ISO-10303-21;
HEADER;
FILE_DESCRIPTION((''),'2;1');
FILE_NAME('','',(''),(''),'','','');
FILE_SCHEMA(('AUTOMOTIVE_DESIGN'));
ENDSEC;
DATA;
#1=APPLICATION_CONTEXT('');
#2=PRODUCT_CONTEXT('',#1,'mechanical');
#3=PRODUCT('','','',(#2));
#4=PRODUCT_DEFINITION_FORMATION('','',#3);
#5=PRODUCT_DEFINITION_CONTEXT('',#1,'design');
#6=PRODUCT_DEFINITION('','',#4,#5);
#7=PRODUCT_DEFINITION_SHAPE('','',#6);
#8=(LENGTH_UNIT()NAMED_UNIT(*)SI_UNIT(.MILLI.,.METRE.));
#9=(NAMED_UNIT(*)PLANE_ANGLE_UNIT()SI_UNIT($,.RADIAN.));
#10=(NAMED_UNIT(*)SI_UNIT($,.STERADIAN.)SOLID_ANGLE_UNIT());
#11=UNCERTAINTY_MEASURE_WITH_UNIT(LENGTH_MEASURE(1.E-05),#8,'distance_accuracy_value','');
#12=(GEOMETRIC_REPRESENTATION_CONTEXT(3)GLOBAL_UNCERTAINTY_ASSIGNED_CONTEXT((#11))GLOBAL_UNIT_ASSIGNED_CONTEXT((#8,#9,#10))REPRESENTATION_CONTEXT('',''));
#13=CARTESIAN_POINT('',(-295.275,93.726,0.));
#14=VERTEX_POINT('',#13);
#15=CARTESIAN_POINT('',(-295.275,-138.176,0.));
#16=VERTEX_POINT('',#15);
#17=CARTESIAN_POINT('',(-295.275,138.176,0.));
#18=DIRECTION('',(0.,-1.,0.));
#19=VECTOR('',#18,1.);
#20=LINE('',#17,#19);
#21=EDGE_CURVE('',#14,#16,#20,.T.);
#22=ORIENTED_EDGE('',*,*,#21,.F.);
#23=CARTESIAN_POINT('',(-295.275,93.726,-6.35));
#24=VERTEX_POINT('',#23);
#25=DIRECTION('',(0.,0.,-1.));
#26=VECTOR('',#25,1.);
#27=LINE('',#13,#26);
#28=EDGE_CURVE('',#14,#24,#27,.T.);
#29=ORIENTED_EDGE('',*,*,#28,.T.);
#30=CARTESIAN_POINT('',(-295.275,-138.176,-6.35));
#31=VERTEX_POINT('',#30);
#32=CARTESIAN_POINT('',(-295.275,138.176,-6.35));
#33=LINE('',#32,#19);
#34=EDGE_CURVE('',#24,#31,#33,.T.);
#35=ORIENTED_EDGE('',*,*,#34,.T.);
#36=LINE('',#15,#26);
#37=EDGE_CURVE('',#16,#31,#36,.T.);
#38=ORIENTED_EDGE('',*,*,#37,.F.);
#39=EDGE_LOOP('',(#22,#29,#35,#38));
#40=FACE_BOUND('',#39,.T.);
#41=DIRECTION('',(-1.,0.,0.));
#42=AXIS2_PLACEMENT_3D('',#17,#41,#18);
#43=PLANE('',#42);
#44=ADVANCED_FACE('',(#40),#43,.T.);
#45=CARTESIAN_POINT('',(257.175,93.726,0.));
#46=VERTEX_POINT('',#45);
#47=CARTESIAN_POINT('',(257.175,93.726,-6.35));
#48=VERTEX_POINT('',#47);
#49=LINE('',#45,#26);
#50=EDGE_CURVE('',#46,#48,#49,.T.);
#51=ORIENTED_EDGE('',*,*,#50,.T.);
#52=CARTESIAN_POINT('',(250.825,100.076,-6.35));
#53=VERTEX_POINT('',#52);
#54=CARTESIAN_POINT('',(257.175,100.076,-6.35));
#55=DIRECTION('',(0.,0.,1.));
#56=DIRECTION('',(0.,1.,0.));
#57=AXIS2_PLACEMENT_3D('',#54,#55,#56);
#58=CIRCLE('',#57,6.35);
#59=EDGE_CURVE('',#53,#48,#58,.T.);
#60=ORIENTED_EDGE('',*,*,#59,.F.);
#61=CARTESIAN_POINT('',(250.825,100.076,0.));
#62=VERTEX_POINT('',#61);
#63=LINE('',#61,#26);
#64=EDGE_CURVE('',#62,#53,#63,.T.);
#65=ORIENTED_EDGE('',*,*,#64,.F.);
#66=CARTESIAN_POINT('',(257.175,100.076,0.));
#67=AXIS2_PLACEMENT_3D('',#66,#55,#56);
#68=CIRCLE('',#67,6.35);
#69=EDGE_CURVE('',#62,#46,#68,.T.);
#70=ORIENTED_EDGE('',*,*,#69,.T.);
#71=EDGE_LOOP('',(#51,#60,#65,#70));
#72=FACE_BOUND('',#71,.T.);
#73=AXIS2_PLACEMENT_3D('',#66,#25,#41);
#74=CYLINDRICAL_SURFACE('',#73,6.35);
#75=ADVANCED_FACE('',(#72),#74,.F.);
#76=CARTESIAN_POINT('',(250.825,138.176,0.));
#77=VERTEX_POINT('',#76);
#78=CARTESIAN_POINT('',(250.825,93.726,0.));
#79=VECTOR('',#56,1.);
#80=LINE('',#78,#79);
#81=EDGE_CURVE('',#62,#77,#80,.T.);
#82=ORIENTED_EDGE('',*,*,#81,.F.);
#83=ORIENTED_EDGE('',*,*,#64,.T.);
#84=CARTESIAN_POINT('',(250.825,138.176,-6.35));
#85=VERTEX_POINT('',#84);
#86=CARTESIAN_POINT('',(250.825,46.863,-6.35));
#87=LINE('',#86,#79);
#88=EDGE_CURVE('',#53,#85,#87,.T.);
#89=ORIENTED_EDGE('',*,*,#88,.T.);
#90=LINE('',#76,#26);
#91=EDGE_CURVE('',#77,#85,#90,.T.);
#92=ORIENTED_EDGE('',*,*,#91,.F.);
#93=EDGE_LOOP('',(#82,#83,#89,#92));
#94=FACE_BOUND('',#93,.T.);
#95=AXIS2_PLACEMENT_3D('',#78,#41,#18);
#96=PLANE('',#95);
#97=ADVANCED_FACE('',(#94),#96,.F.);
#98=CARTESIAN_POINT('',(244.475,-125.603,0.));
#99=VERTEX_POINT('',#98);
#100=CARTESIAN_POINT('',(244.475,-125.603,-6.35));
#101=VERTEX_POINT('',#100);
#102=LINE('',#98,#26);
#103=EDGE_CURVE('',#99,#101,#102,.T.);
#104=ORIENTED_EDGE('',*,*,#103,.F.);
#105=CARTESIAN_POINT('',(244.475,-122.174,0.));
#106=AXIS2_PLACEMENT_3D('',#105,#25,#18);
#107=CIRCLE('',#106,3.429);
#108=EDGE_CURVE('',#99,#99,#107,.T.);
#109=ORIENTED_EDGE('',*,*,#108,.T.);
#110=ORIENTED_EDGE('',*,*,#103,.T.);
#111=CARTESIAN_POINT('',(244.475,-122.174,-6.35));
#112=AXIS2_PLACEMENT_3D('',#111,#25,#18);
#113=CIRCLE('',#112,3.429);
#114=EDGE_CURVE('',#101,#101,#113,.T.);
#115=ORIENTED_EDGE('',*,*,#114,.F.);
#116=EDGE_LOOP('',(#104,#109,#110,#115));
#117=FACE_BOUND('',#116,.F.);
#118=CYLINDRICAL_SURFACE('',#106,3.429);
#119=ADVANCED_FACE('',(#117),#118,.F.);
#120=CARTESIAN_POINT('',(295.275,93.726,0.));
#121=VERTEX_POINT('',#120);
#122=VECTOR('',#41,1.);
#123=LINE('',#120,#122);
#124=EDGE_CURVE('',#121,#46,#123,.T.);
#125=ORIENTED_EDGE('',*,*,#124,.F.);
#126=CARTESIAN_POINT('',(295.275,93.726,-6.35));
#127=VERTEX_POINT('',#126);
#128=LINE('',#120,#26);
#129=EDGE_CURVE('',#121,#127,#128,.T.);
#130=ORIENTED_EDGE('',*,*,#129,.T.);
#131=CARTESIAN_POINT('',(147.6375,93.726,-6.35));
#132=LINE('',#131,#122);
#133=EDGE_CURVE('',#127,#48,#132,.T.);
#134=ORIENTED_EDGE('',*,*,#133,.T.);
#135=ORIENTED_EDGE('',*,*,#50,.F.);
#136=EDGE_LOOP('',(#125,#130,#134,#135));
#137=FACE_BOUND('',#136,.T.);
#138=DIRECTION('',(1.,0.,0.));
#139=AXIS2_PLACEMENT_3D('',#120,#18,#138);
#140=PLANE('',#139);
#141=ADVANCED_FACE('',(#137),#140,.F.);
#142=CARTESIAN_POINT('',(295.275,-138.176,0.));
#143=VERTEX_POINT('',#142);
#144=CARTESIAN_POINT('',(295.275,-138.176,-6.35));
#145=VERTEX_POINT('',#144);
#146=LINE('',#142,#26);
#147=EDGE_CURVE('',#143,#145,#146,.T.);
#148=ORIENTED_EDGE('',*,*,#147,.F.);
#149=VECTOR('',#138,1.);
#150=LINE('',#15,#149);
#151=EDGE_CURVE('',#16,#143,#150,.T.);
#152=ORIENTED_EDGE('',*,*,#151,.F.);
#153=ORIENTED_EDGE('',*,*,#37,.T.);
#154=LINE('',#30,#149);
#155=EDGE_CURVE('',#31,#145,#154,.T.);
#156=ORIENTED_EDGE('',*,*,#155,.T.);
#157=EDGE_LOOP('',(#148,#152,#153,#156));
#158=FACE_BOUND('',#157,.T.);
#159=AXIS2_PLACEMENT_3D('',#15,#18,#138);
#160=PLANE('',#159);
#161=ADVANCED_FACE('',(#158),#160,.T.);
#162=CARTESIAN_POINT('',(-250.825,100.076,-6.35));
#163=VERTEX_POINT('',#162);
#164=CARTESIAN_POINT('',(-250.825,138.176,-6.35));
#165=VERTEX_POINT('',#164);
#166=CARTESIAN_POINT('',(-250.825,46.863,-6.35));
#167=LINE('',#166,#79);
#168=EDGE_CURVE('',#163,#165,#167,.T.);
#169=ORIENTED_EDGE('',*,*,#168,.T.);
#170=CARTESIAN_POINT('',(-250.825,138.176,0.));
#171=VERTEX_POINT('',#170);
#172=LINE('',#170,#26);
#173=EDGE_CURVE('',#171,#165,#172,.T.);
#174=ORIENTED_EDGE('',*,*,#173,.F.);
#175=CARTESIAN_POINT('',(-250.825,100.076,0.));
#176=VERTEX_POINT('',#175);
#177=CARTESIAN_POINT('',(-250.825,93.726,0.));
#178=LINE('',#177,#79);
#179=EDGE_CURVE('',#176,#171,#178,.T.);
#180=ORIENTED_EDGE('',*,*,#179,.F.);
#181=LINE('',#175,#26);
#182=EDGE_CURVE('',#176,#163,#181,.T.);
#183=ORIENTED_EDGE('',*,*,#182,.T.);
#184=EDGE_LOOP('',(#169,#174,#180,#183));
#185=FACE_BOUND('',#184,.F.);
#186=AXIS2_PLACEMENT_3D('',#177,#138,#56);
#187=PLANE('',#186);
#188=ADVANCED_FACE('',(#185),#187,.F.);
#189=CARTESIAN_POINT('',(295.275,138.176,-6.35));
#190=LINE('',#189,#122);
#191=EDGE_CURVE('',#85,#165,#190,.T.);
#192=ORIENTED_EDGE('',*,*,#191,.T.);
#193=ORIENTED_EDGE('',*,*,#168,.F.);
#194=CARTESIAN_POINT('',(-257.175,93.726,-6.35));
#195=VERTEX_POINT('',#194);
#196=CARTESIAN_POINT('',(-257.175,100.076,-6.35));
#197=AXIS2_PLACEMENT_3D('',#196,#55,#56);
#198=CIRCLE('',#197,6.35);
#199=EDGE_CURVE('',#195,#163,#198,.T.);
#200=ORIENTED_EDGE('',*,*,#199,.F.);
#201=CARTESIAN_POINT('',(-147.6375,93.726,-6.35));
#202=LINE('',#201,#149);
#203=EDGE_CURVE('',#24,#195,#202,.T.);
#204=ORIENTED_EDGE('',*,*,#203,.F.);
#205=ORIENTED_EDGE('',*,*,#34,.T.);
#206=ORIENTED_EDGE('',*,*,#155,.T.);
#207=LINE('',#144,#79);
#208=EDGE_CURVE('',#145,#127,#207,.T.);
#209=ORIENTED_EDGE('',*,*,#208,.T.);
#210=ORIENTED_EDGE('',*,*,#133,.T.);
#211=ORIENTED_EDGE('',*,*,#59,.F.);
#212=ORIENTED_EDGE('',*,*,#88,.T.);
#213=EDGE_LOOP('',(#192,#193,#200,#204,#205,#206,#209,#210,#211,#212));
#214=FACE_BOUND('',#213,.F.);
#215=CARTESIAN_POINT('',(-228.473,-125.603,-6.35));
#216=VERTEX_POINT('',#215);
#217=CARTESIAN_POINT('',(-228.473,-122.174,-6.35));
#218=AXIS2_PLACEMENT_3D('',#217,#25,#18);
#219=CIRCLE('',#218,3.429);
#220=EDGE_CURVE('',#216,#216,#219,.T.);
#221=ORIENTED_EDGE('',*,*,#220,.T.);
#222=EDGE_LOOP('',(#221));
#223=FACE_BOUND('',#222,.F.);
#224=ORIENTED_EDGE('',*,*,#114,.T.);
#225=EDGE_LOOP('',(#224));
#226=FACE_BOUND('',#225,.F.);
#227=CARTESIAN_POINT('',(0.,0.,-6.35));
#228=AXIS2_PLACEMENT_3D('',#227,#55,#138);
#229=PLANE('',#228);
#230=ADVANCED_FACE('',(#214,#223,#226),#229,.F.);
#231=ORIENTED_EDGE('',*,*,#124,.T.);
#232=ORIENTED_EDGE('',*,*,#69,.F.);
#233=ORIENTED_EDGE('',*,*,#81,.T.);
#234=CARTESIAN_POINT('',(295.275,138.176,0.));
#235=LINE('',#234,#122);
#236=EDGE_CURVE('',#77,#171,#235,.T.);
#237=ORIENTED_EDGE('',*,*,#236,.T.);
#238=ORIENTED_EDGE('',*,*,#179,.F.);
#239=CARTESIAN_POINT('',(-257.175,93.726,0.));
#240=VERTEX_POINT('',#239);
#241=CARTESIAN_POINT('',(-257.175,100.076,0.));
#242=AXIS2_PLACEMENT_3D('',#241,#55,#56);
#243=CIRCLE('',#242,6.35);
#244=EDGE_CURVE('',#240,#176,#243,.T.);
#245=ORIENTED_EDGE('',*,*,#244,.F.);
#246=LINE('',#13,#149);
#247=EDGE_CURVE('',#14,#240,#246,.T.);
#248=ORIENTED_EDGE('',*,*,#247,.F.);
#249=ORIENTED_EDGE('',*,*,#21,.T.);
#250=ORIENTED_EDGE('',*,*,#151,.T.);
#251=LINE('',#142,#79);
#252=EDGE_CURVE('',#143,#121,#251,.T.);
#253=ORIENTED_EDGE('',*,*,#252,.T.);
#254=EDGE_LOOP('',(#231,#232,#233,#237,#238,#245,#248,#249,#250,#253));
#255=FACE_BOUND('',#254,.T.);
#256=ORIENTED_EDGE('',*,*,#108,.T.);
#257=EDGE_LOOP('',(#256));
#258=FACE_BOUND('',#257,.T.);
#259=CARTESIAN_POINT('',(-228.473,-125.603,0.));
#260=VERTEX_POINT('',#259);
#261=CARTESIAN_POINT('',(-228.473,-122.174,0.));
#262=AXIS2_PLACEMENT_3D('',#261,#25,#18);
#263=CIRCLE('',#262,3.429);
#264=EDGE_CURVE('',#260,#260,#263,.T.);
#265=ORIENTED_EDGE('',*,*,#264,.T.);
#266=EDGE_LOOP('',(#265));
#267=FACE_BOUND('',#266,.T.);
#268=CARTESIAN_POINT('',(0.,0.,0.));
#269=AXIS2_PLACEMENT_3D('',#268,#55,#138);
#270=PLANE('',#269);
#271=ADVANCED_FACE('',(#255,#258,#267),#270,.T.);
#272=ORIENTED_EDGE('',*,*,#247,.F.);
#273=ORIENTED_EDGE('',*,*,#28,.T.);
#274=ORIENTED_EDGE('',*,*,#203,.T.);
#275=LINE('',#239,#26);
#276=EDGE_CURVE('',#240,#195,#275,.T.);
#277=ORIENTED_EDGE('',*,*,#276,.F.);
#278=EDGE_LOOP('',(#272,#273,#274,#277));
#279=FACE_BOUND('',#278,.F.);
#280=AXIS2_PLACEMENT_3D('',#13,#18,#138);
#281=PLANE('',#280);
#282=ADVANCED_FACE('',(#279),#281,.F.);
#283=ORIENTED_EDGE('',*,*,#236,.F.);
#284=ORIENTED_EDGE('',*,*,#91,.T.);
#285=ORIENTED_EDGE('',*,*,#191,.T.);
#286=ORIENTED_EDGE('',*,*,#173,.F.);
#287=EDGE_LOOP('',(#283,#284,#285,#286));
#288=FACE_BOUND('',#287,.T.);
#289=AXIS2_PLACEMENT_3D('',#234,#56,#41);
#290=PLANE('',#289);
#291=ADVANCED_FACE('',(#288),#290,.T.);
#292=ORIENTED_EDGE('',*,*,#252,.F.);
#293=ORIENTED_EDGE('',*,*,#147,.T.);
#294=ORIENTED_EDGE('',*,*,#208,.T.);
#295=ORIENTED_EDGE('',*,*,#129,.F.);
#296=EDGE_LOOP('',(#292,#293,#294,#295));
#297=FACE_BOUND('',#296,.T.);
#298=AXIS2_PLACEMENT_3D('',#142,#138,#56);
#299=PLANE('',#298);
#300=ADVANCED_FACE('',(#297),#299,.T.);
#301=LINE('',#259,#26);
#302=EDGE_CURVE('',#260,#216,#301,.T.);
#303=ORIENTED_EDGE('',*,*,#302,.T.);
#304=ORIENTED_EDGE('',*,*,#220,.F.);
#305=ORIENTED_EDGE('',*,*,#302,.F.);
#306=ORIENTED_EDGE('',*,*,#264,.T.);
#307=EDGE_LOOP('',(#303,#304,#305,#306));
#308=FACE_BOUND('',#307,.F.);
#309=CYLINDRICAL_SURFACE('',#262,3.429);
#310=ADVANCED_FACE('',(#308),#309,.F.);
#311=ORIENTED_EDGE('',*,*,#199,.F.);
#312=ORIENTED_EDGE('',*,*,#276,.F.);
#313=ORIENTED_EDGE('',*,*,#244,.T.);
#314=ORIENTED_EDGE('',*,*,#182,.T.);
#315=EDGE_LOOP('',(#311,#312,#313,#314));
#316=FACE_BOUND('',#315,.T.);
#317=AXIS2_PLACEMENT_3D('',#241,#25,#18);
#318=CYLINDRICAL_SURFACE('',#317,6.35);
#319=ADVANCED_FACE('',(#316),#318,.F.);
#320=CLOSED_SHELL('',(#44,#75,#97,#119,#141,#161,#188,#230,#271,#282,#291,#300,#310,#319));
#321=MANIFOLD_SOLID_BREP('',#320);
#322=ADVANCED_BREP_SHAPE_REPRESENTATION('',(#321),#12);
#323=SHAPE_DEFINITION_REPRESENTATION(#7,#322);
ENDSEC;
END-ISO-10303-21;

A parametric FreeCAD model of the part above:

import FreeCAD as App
import Part
import Sketcher

V = App.Vector
Q = App.Units.Quantity


def edges_at(feature, points):
    """Names of the edges that pass closest to the given points."""
    edges = feature.Shape.Edges
    near = lambda p: min(range(len(edges)), key=lambda i: edges[i].distToShape(Part.Vertex(*p))[0])
    return sorted({f"Edge{near(p) + 1}" for p in points})

doc = App.newDocument("Part")
params = doc.addObject("Spreadsheet::Sheet", "Params")
for row, (alias, value) in enumerate([
    ("sketch1_width", "23.25 in"),
    ("sketch1_height", "10.88 in"),
    ("pad1_length", "0.25 in"),
    ("sketch2_width", "1.75 in"),
    ("fillet_radius", "0.25 in"),
    ("sketch3_diameter", "0.27 in"),
    ("hole_diameter", "0.27 in"),
], start=1):
    params.set(f"A{row}", alias)
    params.set(f"B{row}", "=" + value)
    params.setAlias(f"B{row}", alias)

body = doc.addObject("PartDesign::Body", "Body")

sketch1 = doc.addObject("Sketcher::SketchObject", "Sketch")
body.addObject(sketch1)
sketch1.AttachmentSupport = (doc.XY_Plane, [""])
sketch1.MapMode = "FlatFace"
sketch1.addGeometry(Part.LineSegment(V(-295, 138, 0), V(-295, -138, 0)), False)
sketch1.addGeometry(Part.LineSegment(V(-295, -138, 0), V(295, -138, 0)), False)
sketch1.addGeometry(Part.LineSegment(V(295, -138, 0), V(295, 138, 0)), False)
sketch1.addGeometry(Part.LineSegment(V(295, 138, 0), V(-295, 138, 0)), False)
sketch1.addConstraint(Sketcher.Constraint("Coincident", 0, 2, 1, 1))
sketch1.addConstraint(Sketcher.Constraint("Coincident", 1, 2, 2, 1))
sketch1.addConstraint(Sketcher.Constraint("Coincident", 2, 2, 3, 1))
sketch1.addConstraint(Sketcher.Constraint("Coincident", 3, 2, 0, 1))
sketch1.addConstraint(Sketcher.Constraint("Vertical", 0))
sketch1.addConstraint(Sketcher.Constraint("Horizontal", 1))
sketch1.addConstraint(Sketcher.Constraint("Vertical", 2))
sketch1.addConstraint(Sketcher.Constraint("Horizontal", 3))
sketch1.addConstraint(Sketcher.Constraint("Symmetric", 0, 2, 2, 2, -1, 1))
sketch1.addConstraint(Sketcher.Constraint("DistanceX", 1, 1, 1, 2, Q("23.25 in")))
sketch1.addConstraint(Sketcher.Constraint("DistanceY", 0, 2, 0, 1, Q("10.88 in")))
sketch1.setExpression("Constraints[9]", "Params.sketch1_width")
sketch1.setExpression("Constraints[10]", "Params.sketch1_height")
pad1 = doc.addObject("PartDesign::Pad", "Pad")
body.addObject(pad1)
pad1.Profile = sketch1
pad1.setExpression("Length", "Params.pad1_length")
pad1.Reversed = True

sketch2 = doc.addObject("Sketcher::SketchObject", "Sketch001")
body.addObject(sketch2)
sketch2.AttachmentSupport = (doc.XY_Plane, [""])
sketch2.MapMode = "FlatFace"
sketch2.addGeometry(Part.LineSegment(V(-251, 94, 0), V(-251, 138, 0)), False)
sketch2.addGeometry(Part.LineSegment(V(-251, 138, 0), V(-295, 138, 0)), False)
sketch2.addGeometry(Part.LineSegment(V(-295, 138, 0), V(-295, 94, 0)), False)
sketch2.addGeometry(Part.LineSegment(V(-295, 94, 0), V(-251, 94, 0)), False)
sketch2.addConstraint(Sketcher.Constraint("Coincident", 0, 2, 1, 1))
sketch2.addConstraint(Sketcher.Constraint("Coincident", 1, 2, 2, 1))
sketch2.addConstraint(Sketcher.Constraint("Coincident", 2, 2, 3, 1))
sketch2.addConstraint(Sketcher.Constraint("Coincident", 3, 2, 0, 1))
sketch2.addConstraint(Sketcher.Constraint("Vertical", 0))
sketch2.addConstraint(Sketcher.Constraint("Horizontal", 1))
sketch2.addConstraint(Sketcher.Constraint("Vertical", 2))
sketch2.addConstraint(Sketcher.Constraint("Horizontal", 3))
sketch2.addConstraint(Sketcher.Constraint("Equal", 3, 0))
sketch2.addConstraint(Sketcher.Constraint("DistanceX", 1, 2, 1, 1, Q("1.75 in")))
sketch2.addConstraint(Sketcher.Constraint("DistanceY", -1, 1, 0, 2, Q("5.44 in")))
sketch2.addConstraint(Sketcher.Constraint("DistanceX", 0, 2, -1, 1, Q("9.875 in")))
sketch2.setExpression("Constraints[9]", "Params.sketch2_width")
pocket1 = doc.addObject("PartDesign::Pocket", "Pocket")
body.addObject(pocket1)
pocket1.Profile = sketch2
pocket1.Type = "ThroughAll"
doc.recompute()

fillet = doc.addObject("PartDesign::Fillet", "Fillet")
body.addObject(fillet)
fillet.Base = (pocket1, edges_at(pocket1, [(-250.825, 93.726, -3.175)]))
fillet.setExpression("Radius", "Params.fillet_radius")
doc.recompute()

mirrored = doc.addObject("PartDesign::Mirrored", "Mirrored")
body.addObject(mirrored)
mirrored.Originals = [pocket1, fillet]
mirrored.MirrorPlane = (doc.YZ_Plane, [""])
body.Tip = mirrored

sketch3 = doc.addObject("Sketcher::SketchObject", "Sketch002")
body.addObject(sketch3)
sketch3.AttachmentSupport = (doc.XY_Plane, [""])
sketch3.MapMode = "FlatFace"
sketch3.addGeometry(Part.Circle(V(-228.5, -122.2, 0), V(0, 0, 1), 3.4), False)
sketch3.addGeometry(Part.Circle(V(244.5, -122.2, 0), V(0, 0, 1), 3.4), False)
sketch3.addConstraint(Sketcher.Constraint("Equal", 0, 1))
sketch3.addConstraint(Sketcher.Constraint("Horizontal", 0, 3, 1, 3))
sketch3.addConstraint(Sketcher.Constraint("Diameter", 0, Q("0.27 in")))
sketch3.addConstraint(Sketcher.Constraint("DistanceY", 0, 3, -1, 1, Q("4.81 in")))
sketch3.addConstraint(Sketcher.Constraint("DistanceX", 0, 3, 1, 3, Q("18.62 in")))
sketch3.addConstraint(Sketcher.Constraint("DistanceX", 0, 3, -1, 1, Q("8.995 in")))
sketch3.setExpression("Constraints[2]", "Params.sketch3_diameter")
doc.recompute()
hole = doc.addObject("PartDesign::Hole", "Hole")
body.addObject(hole)
hole.Profile = sketch3
hole.ThreadType = "None"
hole.setExpression("Diameter", "Params.hole_diameter")
hole.DepthType = "ThroughAll"

doc.recompute()
